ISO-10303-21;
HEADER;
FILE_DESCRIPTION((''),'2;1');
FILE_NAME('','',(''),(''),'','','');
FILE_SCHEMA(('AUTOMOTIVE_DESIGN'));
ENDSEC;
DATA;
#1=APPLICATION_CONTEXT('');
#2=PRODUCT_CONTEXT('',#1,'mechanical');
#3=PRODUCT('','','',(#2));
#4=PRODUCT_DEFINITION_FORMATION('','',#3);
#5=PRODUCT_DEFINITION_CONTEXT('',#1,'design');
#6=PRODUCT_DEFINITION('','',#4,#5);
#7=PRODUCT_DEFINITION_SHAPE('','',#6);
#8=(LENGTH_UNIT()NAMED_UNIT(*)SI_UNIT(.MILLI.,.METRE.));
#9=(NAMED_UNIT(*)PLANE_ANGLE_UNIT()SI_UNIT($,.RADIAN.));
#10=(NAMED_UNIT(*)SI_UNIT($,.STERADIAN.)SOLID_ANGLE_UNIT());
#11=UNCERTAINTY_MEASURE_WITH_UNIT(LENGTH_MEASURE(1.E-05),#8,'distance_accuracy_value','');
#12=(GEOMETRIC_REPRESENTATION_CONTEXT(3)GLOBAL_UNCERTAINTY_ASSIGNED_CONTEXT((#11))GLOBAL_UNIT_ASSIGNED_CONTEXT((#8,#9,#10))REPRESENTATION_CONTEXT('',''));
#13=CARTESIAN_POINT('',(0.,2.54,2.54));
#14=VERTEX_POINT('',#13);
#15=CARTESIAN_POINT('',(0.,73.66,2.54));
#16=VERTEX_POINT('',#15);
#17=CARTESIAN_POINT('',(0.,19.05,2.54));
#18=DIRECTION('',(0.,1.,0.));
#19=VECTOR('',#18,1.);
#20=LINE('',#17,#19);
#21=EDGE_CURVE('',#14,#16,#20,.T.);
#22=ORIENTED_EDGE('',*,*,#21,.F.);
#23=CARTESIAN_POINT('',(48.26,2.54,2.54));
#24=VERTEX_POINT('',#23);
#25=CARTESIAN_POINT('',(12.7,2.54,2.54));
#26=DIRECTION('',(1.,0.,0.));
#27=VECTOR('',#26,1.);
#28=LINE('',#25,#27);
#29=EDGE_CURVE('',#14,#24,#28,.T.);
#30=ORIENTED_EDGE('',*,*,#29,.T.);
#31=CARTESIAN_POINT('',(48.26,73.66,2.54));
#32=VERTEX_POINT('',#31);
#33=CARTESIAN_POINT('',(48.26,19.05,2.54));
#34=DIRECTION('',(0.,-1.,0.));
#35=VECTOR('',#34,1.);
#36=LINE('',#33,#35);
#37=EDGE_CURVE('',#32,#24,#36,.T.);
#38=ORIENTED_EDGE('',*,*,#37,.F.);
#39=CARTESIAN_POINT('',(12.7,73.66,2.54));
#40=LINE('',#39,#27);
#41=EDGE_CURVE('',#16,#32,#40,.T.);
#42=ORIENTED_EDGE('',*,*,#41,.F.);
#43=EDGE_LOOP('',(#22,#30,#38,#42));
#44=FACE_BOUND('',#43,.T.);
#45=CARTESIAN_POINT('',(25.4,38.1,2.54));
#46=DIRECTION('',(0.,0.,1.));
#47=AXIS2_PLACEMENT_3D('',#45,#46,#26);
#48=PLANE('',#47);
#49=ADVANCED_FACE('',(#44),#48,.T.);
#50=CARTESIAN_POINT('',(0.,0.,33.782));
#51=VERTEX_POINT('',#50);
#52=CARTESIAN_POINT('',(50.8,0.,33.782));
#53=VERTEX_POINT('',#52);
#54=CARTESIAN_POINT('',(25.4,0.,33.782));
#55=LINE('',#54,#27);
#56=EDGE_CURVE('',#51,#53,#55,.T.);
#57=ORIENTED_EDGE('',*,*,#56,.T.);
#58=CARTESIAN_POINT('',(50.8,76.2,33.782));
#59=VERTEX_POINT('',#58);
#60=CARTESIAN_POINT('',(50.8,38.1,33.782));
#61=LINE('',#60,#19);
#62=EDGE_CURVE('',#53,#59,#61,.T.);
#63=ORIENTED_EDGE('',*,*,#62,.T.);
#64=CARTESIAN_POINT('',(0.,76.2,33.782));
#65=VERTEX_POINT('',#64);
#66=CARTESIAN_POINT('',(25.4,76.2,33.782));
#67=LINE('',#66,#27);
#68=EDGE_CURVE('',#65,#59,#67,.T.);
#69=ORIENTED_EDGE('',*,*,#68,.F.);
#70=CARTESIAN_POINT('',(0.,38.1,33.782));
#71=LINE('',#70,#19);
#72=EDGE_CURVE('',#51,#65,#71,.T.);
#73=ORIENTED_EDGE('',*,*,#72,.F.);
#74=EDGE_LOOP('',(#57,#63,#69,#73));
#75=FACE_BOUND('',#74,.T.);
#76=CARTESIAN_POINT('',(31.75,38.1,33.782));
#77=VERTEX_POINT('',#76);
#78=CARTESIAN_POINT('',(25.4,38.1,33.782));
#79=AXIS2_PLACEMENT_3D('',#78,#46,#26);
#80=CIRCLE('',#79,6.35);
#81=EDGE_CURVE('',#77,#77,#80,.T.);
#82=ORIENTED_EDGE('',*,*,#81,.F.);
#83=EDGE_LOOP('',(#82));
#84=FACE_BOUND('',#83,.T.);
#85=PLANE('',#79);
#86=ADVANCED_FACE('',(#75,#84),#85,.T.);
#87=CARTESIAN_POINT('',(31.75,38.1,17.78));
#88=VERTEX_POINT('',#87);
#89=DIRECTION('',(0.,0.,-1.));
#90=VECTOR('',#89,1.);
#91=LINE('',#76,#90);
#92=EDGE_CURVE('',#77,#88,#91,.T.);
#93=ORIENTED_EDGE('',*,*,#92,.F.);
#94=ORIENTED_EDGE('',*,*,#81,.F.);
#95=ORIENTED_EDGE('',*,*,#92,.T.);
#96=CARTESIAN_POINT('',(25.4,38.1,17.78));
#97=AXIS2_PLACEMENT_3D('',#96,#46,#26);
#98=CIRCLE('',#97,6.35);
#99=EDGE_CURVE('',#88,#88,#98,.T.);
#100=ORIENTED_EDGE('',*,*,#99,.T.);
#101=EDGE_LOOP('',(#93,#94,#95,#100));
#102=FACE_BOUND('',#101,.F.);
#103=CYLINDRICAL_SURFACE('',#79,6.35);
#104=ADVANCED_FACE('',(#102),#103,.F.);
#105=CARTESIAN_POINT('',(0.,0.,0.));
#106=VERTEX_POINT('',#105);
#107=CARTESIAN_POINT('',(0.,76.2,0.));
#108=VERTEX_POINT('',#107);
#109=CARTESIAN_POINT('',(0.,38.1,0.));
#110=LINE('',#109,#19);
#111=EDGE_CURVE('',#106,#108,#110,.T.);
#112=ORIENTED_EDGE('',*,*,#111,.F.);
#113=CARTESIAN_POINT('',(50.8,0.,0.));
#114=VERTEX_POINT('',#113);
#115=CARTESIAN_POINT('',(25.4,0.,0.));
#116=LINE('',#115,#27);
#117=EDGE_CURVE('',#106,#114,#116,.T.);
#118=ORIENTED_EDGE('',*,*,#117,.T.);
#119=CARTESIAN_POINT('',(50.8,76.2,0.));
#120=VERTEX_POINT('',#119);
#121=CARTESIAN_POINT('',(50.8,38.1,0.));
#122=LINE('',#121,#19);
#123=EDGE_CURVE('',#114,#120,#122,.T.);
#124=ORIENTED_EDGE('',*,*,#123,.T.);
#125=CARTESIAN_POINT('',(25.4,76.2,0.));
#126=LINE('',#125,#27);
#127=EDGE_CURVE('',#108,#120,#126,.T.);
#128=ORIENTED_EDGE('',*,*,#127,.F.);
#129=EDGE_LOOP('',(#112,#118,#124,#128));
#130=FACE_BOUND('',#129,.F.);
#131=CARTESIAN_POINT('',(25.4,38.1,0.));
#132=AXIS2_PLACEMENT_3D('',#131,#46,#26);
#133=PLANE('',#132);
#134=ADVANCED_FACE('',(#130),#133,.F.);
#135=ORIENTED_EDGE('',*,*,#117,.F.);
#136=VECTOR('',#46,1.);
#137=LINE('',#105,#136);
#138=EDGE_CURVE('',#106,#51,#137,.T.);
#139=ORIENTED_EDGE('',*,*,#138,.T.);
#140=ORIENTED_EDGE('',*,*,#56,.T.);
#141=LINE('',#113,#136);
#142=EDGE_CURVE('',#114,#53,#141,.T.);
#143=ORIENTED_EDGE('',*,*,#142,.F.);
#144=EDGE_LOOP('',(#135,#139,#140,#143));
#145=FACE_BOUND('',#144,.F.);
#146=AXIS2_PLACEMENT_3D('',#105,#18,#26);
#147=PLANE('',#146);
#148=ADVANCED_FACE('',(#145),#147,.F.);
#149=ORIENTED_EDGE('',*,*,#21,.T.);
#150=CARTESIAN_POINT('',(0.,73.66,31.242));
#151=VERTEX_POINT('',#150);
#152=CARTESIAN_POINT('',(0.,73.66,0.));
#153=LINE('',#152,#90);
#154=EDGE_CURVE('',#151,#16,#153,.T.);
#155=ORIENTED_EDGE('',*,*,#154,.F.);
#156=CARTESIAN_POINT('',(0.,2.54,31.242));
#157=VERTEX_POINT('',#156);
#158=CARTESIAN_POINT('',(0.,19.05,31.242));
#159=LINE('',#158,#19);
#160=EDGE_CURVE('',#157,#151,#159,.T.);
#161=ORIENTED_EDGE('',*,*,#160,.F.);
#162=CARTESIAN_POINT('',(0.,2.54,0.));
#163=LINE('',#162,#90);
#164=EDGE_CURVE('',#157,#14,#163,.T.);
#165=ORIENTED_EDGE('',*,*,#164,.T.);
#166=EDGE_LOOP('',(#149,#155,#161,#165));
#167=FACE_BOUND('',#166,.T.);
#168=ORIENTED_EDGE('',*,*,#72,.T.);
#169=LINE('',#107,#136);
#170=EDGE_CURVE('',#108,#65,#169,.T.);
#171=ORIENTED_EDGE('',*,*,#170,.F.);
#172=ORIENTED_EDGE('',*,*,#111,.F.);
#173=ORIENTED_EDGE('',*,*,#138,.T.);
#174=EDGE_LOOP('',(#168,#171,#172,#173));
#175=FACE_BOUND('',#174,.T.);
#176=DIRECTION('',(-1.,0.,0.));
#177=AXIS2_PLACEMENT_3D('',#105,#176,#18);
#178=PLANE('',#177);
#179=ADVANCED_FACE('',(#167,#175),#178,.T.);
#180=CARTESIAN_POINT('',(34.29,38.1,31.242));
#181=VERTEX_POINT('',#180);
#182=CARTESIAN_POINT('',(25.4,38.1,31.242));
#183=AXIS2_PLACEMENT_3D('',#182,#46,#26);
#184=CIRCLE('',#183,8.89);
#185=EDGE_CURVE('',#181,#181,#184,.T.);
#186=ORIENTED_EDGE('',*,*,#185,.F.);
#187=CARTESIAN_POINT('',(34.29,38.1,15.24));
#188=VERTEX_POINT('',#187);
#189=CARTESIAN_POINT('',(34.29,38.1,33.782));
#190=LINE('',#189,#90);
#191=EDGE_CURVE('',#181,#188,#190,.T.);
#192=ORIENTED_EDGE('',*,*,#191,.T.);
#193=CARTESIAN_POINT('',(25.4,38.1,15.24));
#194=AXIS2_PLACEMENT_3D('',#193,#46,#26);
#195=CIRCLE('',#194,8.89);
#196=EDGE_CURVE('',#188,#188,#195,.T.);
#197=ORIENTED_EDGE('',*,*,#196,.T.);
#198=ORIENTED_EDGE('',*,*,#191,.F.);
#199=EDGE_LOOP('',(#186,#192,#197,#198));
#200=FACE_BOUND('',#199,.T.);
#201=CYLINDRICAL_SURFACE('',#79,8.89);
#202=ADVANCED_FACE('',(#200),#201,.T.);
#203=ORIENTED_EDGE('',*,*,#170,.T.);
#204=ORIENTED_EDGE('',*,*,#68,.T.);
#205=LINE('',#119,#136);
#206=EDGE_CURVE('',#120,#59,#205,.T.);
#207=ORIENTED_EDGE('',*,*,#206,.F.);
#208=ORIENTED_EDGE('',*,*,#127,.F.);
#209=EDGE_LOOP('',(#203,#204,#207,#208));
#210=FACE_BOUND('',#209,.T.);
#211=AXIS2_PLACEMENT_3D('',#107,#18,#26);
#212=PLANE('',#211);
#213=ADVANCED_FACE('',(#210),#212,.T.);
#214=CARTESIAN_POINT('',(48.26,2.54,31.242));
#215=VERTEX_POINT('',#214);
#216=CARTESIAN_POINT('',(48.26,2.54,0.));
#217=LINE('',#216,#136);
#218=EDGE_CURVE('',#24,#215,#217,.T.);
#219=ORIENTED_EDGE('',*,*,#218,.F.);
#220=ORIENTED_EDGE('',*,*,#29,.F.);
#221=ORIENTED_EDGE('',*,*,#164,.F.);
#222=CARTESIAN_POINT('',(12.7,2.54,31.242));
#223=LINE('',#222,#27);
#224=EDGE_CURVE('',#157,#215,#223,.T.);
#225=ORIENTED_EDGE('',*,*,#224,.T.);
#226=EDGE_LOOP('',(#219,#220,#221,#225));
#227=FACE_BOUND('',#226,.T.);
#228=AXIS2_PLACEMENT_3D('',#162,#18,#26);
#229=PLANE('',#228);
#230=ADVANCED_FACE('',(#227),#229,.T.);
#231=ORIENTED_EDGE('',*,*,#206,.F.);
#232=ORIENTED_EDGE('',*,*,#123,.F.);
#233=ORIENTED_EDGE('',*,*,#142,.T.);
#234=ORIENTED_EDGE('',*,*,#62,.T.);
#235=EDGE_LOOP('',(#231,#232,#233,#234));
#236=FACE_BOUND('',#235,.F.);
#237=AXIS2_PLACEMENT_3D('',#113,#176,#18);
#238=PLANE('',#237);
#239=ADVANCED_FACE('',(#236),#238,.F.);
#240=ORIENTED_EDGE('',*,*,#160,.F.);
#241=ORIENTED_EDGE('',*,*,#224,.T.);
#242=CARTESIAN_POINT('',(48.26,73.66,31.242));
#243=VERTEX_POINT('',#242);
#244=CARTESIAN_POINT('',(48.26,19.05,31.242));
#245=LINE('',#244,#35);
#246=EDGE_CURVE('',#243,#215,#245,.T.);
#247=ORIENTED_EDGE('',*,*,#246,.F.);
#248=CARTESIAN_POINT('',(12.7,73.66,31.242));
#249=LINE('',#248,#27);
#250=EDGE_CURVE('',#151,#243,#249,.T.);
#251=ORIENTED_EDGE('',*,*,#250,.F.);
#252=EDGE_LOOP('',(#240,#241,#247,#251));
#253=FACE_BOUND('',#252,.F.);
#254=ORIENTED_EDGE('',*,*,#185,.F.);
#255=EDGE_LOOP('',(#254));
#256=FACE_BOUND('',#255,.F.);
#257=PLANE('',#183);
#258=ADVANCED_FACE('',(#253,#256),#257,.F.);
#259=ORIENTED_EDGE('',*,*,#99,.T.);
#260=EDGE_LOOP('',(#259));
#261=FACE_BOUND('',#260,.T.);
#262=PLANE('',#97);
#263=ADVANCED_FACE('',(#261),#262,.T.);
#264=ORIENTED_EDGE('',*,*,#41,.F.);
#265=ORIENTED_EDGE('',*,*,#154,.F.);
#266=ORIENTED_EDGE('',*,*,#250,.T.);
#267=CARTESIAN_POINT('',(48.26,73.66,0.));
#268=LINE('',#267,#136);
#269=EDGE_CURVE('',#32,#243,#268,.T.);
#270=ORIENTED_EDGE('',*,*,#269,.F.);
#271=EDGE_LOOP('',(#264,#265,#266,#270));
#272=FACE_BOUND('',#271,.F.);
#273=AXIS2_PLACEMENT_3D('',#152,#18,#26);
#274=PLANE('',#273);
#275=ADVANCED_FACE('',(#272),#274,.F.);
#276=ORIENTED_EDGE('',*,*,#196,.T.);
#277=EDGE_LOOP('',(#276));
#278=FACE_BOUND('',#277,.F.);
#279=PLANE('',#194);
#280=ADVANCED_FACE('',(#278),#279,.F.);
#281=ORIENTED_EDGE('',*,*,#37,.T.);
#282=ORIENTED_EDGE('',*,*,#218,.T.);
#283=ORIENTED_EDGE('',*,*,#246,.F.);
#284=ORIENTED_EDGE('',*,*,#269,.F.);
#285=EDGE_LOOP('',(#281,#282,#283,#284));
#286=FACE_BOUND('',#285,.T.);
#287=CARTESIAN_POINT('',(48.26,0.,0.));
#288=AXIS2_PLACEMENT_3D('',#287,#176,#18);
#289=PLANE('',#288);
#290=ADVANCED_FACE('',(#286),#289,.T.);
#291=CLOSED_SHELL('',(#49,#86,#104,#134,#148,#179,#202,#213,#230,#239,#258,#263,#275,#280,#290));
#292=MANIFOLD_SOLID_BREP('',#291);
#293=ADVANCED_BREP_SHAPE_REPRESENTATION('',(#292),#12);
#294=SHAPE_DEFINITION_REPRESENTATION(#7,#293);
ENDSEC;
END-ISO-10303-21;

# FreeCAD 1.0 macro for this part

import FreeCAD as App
import Part
import Sketcher
Q = App.Units.Quantity


def faces_at(feature, points):
    """Names of the faces that lie closest to the given points."""
    faces = feature.Shape.Faces
    near = lambda p: min(range(len(faces)), key=lambda i: faces[i].distToShape(Part.Vertex(*p))[0])
    return sorted({f"Face{near(p) + 1}" for p in points})


def add_polygon(sketch, points):
    """Adds a closed chain of lines whose ends are joined by coincident constraints."""
    first, n = sketch.GeometryCount, len(points)
    for a, b in zip(points, points[1:] + points[:1]):
        sketch.addGeometry(Part.LineSegment(App.Vector(*a, 0), App.Vector(*b, 0)), False)
    for i in range(n):
        sketch.addConstraint(Sketcher.Constraint("Coincident", first + i, 2, first + (i + 1) % n, 1))

doc = App.newDocument("Part")
params = doc.addObject("Spreadsheet::Sheet", "Params")
for row, (alias, value) in enumerate([
    ("sketch1_width", "2 in"),
    ("sketch1_height", "3 in"),
    ("pad1_length", "1.33 in"),
    ("sketch2_diameter", "0.5 in"),
    ("pocket1_length", "0.63 in"),
    ("thickness_wall", "0.1 in"),
], start=1):
    params.set(f"A{row}", alias)
    params.set(f"B{row}", "=" + value)
    params.setAlias(f"B{row}", alias)

body = doc.addObject("PartDesign::Body", "Body")

sketch1 = doc.addObject("Sketcher::SketchObject", "Sketch")
body.addObject(sketch1)
sketch1.AttachmentSupport = (doc.XY_Plane, [""])
sketch1.MapMode = "FlatFace"
add_polygon(sketch1, [(0, 76), (0, 0), (51, 0), (51, 76)])
sketch1.addConstraint([
    Sketcher.Constraint("Vertical", 0),
    Sketcher.Constraint("Horizontal", 1),
    Sketcher.Constraint("Vertical", 2),
    Sketcher.Constraint("Horizontal", 3),
    Sketcher.Constraint("Coincident", 0, 2, -1, 1),
    Sketcher.Constraint("DistanceX", 1, 1, 1, 2, Q("2 in")),
    Sketcher.Constraint("DistanceY", 0, 2, 0, 1, Q("3 in")),
])
sketch1.setExpression("Constraints[9]", "Params.sketch1_width")
sketch1.setExpression("Constraints[10]", "Params.sketch1_height")
pad1 = doc.addObject("PartDesign::Pad", "Pad")
body.addObject(pad1)
pad1.Profile = sketch1
pad1.setExpression("Length", "Params.pad1_length")

sketch2 = doc.addObject("Sketcher::SketchObject", "Sketch001")
body.addObject(sketch2)
sketch2.AttachmentSupport = (doc.XY_Plane, [""])
sketch2.MapMode = "FlatFace"
sketch2.AttachmentOffset = App.Placement(App.Vector(0, 0, 1.33 * 25.4), App.Rotation())
sketch2.addGeometry(Part.Circle(App.Vector(25, 38, 0), App.Vector(0, 0, 1), 6), False)
sketch2.addConstraint([
    Sketcher.Constraint("Diameter", 0, Q("0.5 in")),
    Sketcher.Constraint("DistanceX", -1, 1, 0, 3, Q("1 in")),
    Sketcher.Constraint("DistanceY", -1, 1, 0, 3, Q("1.5 in")),
])
sketch2.setExpression("Constraints[0]", "Params.sketch2_diameter")
pocket1 = doc.addObject("PartDesign::Pocket", "Pocket")
body.addObject(pocket1)
pocket1.Profile = sketch2
pocket1.setExpression("Length", "Params.pocket1_length")
doc.recompute()

thickness = doc.addObject("PartDesign::Thickness", "Thickness")
body.addObject(thickness)
thickness.Base = (pocket1, faces_at(pocket1, [(0, 38.1, 16.891)]))
thickness.setExpression("Value", "Params.thickness_wall")
thickness.Reversed = True
thickness.Join = "Intersection"

doc.recompute()
